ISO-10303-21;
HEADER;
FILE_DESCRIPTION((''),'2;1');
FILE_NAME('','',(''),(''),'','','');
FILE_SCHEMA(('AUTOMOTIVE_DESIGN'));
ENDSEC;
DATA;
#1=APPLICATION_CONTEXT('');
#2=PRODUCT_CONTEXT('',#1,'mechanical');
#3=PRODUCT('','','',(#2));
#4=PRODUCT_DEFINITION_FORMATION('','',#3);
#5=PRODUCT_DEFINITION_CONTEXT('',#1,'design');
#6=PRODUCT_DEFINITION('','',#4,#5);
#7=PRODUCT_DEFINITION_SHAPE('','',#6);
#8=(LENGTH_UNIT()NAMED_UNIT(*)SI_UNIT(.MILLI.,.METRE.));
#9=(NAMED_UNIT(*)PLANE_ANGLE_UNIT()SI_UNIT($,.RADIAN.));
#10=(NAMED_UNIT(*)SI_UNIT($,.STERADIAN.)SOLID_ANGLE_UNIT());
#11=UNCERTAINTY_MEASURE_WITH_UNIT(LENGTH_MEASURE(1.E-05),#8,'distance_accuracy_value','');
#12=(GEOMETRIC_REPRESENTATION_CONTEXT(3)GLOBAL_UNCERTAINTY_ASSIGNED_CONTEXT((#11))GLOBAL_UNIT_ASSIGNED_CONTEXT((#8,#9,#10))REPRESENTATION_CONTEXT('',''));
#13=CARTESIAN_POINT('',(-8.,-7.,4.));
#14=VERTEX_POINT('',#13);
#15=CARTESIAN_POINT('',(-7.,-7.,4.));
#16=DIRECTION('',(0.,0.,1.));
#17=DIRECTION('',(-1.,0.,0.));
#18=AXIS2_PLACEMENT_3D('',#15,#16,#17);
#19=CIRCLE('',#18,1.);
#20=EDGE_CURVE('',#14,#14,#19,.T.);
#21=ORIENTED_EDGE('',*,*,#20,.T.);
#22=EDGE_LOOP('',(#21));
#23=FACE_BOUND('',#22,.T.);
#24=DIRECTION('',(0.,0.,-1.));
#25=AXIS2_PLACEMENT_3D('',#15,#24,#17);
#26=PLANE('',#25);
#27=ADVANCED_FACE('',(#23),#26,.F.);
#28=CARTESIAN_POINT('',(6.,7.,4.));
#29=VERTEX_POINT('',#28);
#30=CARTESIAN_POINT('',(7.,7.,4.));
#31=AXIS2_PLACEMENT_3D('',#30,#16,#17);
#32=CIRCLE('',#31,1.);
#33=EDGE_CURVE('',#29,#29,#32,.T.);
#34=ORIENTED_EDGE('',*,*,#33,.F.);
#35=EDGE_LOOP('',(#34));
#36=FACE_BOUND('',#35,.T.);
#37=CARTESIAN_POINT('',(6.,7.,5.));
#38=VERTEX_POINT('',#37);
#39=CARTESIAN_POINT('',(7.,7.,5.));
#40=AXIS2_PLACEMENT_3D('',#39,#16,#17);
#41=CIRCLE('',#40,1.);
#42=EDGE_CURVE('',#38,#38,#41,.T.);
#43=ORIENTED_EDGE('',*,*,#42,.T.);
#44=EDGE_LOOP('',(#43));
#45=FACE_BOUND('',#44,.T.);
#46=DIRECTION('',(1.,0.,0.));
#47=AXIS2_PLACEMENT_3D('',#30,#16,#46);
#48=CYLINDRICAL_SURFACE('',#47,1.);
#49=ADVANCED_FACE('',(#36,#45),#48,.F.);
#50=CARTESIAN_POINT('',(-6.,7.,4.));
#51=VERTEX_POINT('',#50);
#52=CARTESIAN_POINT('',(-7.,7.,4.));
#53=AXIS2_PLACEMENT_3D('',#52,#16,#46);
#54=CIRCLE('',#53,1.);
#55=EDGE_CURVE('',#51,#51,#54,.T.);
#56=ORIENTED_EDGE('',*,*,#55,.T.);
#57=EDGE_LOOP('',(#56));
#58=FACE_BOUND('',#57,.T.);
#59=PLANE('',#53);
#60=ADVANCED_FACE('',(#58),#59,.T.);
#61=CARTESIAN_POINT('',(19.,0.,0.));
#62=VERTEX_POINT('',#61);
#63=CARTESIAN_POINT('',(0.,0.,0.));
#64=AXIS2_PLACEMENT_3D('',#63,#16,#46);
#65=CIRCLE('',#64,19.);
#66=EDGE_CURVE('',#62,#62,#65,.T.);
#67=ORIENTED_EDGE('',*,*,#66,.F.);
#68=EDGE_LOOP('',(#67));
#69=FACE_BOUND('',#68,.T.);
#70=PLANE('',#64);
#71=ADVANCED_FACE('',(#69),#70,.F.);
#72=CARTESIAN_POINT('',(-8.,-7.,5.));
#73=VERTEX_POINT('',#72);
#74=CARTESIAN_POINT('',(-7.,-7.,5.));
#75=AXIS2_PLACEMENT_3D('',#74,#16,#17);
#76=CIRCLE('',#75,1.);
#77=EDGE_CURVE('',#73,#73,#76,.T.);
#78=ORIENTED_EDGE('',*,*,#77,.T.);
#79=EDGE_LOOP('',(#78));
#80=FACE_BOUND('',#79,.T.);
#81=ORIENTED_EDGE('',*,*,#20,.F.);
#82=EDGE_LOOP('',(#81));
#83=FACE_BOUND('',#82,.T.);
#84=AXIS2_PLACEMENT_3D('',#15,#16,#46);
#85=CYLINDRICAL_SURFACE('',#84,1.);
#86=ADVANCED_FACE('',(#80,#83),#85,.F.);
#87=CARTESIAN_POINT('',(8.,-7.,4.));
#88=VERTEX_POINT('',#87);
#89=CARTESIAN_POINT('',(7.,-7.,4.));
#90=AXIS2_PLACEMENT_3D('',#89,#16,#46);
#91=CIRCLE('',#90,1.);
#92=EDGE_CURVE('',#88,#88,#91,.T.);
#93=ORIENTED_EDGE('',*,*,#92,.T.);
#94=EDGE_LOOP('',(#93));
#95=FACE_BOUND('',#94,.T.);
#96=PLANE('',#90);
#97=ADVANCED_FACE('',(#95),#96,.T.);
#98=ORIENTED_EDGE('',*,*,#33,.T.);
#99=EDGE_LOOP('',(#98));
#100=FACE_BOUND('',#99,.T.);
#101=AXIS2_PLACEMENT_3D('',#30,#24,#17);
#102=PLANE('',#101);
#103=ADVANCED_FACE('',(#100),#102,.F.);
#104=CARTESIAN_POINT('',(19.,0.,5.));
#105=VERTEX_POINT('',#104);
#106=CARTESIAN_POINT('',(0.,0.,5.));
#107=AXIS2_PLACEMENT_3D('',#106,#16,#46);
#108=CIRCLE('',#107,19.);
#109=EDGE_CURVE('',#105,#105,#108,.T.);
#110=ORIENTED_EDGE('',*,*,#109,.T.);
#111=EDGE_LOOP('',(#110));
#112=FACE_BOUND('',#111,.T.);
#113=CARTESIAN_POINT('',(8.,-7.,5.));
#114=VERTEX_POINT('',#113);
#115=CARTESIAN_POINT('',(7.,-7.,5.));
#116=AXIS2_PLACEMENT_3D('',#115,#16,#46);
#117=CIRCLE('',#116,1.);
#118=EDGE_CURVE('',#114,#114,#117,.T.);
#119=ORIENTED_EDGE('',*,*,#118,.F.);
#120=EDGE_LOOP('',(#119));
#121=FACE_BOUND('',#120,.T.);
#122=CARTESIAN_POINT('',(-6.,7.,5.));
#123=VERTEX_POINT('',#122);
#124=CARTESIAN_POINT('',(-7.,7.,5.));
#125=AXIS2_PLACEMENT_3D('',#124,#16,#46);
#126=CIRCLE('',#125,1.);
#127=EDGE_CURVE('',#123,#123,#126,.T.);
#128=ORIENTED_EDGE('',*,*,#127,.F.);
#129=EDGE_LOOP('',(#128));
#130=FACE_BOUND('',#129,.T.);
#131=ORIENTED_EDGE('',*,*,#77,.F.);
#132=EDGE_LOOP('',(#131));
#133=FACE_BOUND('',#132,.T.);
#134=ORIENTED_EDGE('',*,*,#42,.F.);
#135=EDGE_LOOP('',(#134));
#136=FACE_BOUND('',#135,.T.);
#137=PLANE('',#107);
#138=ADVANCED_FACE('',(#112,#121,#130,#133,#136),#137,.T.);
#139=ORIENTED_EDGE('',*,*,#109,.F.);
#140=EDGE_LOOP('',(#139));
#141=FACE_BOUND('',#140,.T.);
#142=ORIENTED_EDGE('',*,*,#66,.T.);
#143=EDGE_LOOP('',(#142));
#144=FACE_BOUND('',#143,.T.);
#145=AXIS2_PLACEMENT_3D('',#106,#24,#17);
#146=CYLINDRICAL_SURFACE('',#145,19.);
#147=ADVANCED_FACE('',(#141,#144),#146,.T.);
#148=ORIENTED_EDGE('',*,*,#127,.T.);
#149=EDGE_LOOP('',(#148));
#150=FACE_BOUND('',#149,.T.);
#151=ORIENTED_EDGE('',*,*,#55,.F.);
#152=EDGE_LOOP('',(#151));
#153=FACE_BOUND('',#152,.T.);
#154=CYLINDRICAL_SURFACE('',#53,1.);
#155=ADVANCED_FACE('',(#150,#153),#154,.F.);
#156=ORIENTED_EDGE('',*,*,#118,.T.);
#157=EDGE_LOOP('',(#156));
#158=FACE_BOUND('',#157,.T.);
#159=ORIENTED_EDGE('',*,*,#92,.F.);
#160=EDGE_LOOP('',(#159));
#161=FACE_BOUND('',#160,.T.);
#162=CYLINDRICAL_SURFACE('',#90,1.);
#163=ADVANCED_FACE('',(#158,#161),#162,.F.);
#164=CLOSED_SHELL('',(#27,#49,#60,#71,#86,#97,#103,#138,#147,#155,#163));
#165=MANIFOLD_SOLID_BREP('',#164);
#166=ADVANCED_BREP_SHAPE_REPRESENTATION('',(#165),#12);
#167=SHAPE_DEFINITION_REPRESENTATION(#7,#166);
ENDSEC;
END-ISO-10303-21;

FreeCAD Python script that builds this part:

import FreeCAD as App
import Part
import Sketcher

V = App.Vector

doc = App.newDocument("Part")
body = doc.addObject("PartDesign::Body", "Body")

# Sketch on XY plane
sketch1 = body.newObject("Sketcher::SketchObject", "Sketch")
sketch1.AttachmentSupport = (doc.getObject("XY_Plane"), [""])
sketch1.MapMode = "FlatFace"
sketch1.addGeometry(Part.Circle(V(0, 0, 0), V(0, 0, 1), 19), False)
sketch1.addConstraint(Sketcher.Constraint("Coincident", 0, 3, -1, 1))
sketch1.addConstraint(Sketcher.Constraint("Diameter", 0, 38.0))
pad1 = body.newObject("PartDesign::Pad", "Pad")
pad1.Profile = sketch1
pad1.Length = 5

# Sketch on XY plane
sketch2 = body.newObject("Sketcher::SketchObject", "Sketch001")
sketch2.AttachmentSupport = (doc.getObject("XY_Plane"), [""])
sketch2.MapMode = "FlatFace"
sketch2.AttachmentOffset = App.Placement(V(0, 0, 5), App.Rotation())
sketch2.addGeometry(Part.Circle(V(-7, 7, 0), V(0, 0, 1), 1), False)
sketch2.addGeometry(Part.Circle(V(7, 7, 0), V(0, 0, 1), 1), False)
sketch2.addGeometry(Part.Circle(V(7, -7, 0), V(0, 0, 1), 1), False)
sketch2.addGeometry(Part.Circle(V(-7, -7, 0), V(0, 0, 1), 1), False)
sketch2.addConstraint(Sketcher.Constraint("Equal", 0, 1))
sketch2.addConstraint(Sketcher.Constraint("Equal", 1, 2))
sketch2.addConstraint(Sketcher.Constraint("Equal", 2, 3))
sketch2.addConstraint(Sketcher.Constraint("Symmetric", 0, 3, 2, 3, -1, 1))
sketch2.addConstraint(Sketcher.Constraint("Symmetric", 1, 3, 3, 3, -1, 1))
sketch2.addConstraint(Sketcher.Constraint("Symmetric", 0, 3, 1, 3, -2))
sketch2.addConstraint(Sketcher.Constraint("Diameter", 0, 2.0))
sketch2.addConstraint(Sketcher.Constraint("DistanceX", 0, 3, -1, 1, 7.0))
sketch2.addConstraint(Sketcher.Constraint("DistanceY", -1, 1, 0, 3, 7.0))
pocket1 = body.newObject("PartDesign::Pocket", "Pocket")
pocket1.Profile = sketch2
pocket1.Length = 1

doc.recompute()
